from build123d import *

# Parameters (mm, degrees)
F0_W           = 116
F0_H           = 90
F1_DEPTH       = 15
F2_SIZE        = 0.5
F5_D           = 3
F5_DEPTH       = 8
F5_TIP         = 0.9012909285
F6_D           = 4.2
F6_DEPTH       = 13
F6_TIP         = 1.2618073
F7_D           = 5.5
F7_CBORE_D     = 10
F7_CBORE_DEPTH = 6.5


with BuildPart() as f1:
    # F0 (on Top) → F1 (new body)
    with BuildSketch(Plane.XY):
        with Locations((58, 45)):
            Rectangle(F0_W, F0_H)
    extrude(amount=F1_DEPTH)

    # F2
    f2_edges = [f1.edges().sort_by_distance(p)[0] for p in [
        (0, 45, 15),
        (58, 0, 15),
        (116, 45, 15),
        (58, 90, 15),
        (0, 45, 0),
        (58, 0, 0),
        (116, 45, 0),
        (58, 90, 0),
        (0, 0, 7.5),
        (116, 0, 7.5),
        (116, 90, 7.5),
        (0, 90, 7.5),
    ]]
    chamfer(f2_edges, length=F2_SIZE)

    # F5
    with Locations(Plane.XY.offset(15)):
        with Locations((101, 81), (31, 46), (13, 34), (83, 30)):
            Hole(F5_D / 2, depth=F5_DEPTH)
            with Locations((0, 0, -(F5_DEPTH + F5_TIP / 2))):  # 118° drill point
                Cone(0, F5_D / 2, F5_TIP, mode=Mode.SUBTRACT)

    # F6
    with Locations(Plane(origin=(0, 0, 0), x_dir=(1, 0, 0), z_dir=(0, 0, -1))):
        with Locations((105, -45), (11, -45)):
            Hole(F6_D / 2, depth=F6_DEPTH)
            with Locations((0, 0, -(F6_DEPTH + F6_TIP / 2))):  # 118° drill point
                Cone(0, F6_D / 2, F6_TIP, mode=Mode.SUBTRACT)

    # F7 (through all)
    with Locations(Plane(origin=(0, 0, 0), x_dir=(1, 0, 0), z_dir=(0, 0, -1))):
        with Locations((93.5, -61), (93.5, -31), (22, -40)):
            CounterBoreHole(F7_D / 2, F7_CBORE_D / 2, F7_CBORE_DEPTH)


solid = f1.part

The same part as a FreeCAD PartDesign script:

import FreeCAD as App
import Part
import Sketcher

doc = App.newDocument("Part")
params = doc.addObject("Spreadsheet::Sheet", "Params")
for row, (alias, value) in enumerate([
    ("sketch1_width", "116 mm"),
    ("sketch1_height", "90 mm"),
    ("pad1_length", "15 mm"),
    ("chamfer_size", "0.5 mm"),
    ("sketch2_diameter", "3 mm"),
    ("hole_diameter", "3 mm"),
    ("hole_depth", "8 mm"),
    ("sketch3_diameter", "4.2 mm"),
    ("hole2_diameter", "4.2 mm"),
    ("hole2_depth", "13 mm"),
    ("sketch4_diameter", "5.5 mm"),
    ("hole3_diameter", "5.5 mm"),
    ("hole3_cbore_diameter", "10 mm"),
    ("hole3_cbore_depth", "6.5 mm"),
], start=1):
    params.set(f"A{row}", alias)
    params.set(f"B{row}", "=" + value)
    params.setAlias(f"B{row}", alias)

body = doc.addObject("PartDesign::Body", "Body")

# Sketch on XY plane
sketch1 = doc.addObject("Sketcher::SketchObject", "Sketch")
body.addObject(sketch1)
sketch1.AttachmentSupport = (doc.XY_Plane, [""])
sketch1.MapMode = "FlatFace"
sketch1.addGeometry([
    Part.LineSegment(App.Vector(0, 90, 0), App.Vector(0, 0, 0)),
    Part.LineSegment(App.Vector(0, 0, 0), App.Vector(116, 0, 0)),
    Part.LineSegment(App.Vector(116, 0, 0), App.Vector(116, 90, 0)),
    Part.LineSegment(App.Vector(116, 90, 0), App.Vector(0, 90, 0)),
], False)
sketch1.addConstraint([
    Sketcher.Constraint("Coincident", 0, 2, 1, 1),
    Sketcher.Constraint("Coincident", 1, 2, 2, 1),
    Sketcher.Constraint("Coincident", 2, 2, 3, 1),
    Sketcher.Constraint("Coincident", 3, 2, 0, 1),
    Sketcher.Constraint("Vertical", 0),
    Sketcher.Constraint("Horizontal", 1),
    Sketcher.Constraint("Vertical", 2),
    Sketcher.Constraint("Horizontal", 3),
    Sketcher.Constraint("Coincident", 0, 2, -1, 1),
    Sketcher.Constraint("DistanceX", 1, 1, 1, 2, 116.0),
    Sketcher.Constraint("DistanceY", 0, 2, 0, 1, 90.0),
])
sketch1.setExpression("Constraints[9]", "Params.sketch1_width")
sketch1.setExpression("Constraints[10]", "Params.sketch1_height")
pad1 = doc.addObject("PartDesign::Pad", "Pad")
body.addObject(pad1)
pad1.Profile = sketch1
pad1.setExpression("Length", "Params.pad1_length")
doc.recompute()

chamfer = doc.addObject("PartDesign::Chamfer", "Chamfer")
body.addObject(chamfer)
chamfer.Base = (pad1, ["Edge1"])
chamfer.UseAllEdges = True
chamfer.setExpression("Size", "Params.chamfer_size")

# Sketch on XY plane
sketch2 = doc.addObject("Sketcher::SketchObject", "Sketch001")
body.addObject(sketch2)
sketch2.AttachmentSupport = (doc.XY_Plane, [""])
sketch2.MapMode = "FlatFace"
sketch2.AttachmentOffset = App.Placement(App.Vector(0, 0, 15), App.Rotation())
sketch2.addGeometry([
    Part.Circle(App.Vector(101, 81, 0), App.Vector(0, 0, 1), 1.5),
    Part.Circle(App.Vector(31, 46, 0), App.Vector(0, 0, 1), 1.5),
    Part.Circle(App.Vector(13, 34, 0), App.Vector(0, 0, 1), 1.5),
    Part.Circle(App.Vector(83, 30, 0), App.Vector(0, 0, 1), 1.5),
], False)
sketch2.addConstraint([
    Sketcher.Constraint("Equal", 0, 1),
    Sketcher.Constraint("Equal", 1, 2),
    Sketcher.Constraint("Equal", 2, 3),
    Sketcher.Constraint("Diameter", 0, 3.0),
    Sketcher.Constraint("DistanceX", -1, 1, 0, 3, 101.0),
    Sketcher.Constraint("DistanceY", -1, 1, 0, 3, 81.0),
    Sketcher.Constraint("DistanceX", -1, 1, 1, 3, 31.0),
    Sketcher.Constraint("DistanceY", -1, 1, 1, 3, 46.0),
    Sketcher.Constraint("DistanceX", -1, 1, 2, 3, 13.0),
    Sketcher.Constraint("DistanceY", -1, 1, 2, 3, 34.0),
    Sketcher.Constraint("DistanceX", -1, 1, 3, 3, 83.0),
    Sketcher.Constraint("DistanceY", -1, 1, 3, 3, 30.0),
])
sketch2.setExpression("Constraints[3]", "Params.sketch2_diameter")
doc.recompute()
hole = doc.addObject("PartDesign::Hole", "Hole")
body.addObject(hole)
hole.Profile = sketch2
hole.ThreadType = "None"
hole.setExpression("Diameter", "Params.hole_diameter")
hole.DepthType = "Dimension"
hole.setExpression("Depth", "Params.hole_depth")
hole.DrillPoint = "Angled"
hole.DrillPointAngle = 118

# Sketch on XY plane
sketch3 = doc.addObject("Sketcher::SketchObject", "Sketch002")
body.addObject(sketch3)
sketch3.AttachmentSupport = (doc.XY_Plane, [""])
sketch3.MapMode = "FlatFace"
sketch3.addGeometry([
    Part.Circle(App.Vector(105, 45, 0), App.Vector(0, 0, 1), 2.1),
    Part.Circle(App.Vector(11, 45, 0), App.Vector(0, 0, 1), 2.1),
], False)
sketch3.addConstraint([
    Sketcher.Constraint("Equal", 0, 1),
    Sketcher.Constraint("Horizontal", 0, 3, 1, 3),
    Sketcher.Constraint("Diameter", 0, 4.2),
    Sketcher.Constraint("DistanceX", -1, 1, 0, 3, 105.0),
    Sketcher.Constraint("DistanceY", -1, 1, 0, 3, 45.0),
    Sketcher.Constraint("DistanceX", -1, 1, 1, 3, 11.0),
])
sketch3.setExpression("Constraints[2]", "Params.sketch3_diameter")
doc.recompute()
hole2 = doc.addObject("PartDesign::Hole", "Hole001")
body.addObject(hole2)
hole2.Profile = sketch3
hole2.ThreadType = "None"
hole2.setExpression("Diameter", "Params.hole2_diameter")
hole2.DepthType = "Dimension"
hole2.setExpression("Depth", "Params.hole2_depth")
hole2.DrillPoint = "Angled"
hole2.DrillPointAngle = 118
hole2.Reversed = True

# Sketch on XY plane
sketch4 = doc.addObject("Sketcher::SketchObject", "Sketch003")
body.addObject(sketch4)
sketch4.AttachmentSupport = (doc.XY_Plane, [""])
sketch4.MapMode = "FlatFace"
sketch4.addGeometry([
    Part.Circle(App.Vector(93.5, 61, 0), App.Vector(0, 0, 1), 2.75),
    Part.Circle(App.Vector(93.5, 31, 0), App.Vector(0, 0, 1), 2.75),
    Part.Circle(App.Vector(22, 40, 0), App.Vector(0, 0, 1), 2.75),
], False)
sketch4.addConstraint([
    Sketcher.Constraint("Equal", 0, 1),
    Sketcher.Constraint("Equal", 1, 2),
    Sketcher.Constraint("Vertical", 0, 3, 1, 3),
    Sketcher.Constraint("Diameter", 0, 5.5),
    Sketcher.Constraint("DistanceY", -1, 1, 0, 3, 61.0),
    Sketcher.Constraint("DistanceY", -1, 1, 1, 3, 31.0),
    Sketcher.Constraint("DistanceX", -1, 1, 2, 3, 22.0),
    Sketcher.Constraint("DistanceY", -1, 1, 2, 3, 40.0),
    Sketcher.Constraint("DistanceX", -1, 1, 0, 3, 93.5),
])
sketch4.setExpression("Constraints[3]", "Params.sketch4_diameter")
doc.recompute()
hole3 = doc.addObject("PartDesign::Hole", "Hole002")
body.addObject(hole3)
hole3.Profile = sketch4
hole3.ThreadType = "None"
hole3.setExpression("Diameter", "Params.hole3_diameter")
hole3.DepthType = "ThroughAll"
hole3.HoleCutType = "Counterbore"
hole3.setExpression("HoleCutDiameter", "Params.hole3_cbore_diameter")
hole3.setExpression("HoleCutDepth", "Params.hole3_cbore_depth")
hole3.Reversed = True

doc.recompute()
